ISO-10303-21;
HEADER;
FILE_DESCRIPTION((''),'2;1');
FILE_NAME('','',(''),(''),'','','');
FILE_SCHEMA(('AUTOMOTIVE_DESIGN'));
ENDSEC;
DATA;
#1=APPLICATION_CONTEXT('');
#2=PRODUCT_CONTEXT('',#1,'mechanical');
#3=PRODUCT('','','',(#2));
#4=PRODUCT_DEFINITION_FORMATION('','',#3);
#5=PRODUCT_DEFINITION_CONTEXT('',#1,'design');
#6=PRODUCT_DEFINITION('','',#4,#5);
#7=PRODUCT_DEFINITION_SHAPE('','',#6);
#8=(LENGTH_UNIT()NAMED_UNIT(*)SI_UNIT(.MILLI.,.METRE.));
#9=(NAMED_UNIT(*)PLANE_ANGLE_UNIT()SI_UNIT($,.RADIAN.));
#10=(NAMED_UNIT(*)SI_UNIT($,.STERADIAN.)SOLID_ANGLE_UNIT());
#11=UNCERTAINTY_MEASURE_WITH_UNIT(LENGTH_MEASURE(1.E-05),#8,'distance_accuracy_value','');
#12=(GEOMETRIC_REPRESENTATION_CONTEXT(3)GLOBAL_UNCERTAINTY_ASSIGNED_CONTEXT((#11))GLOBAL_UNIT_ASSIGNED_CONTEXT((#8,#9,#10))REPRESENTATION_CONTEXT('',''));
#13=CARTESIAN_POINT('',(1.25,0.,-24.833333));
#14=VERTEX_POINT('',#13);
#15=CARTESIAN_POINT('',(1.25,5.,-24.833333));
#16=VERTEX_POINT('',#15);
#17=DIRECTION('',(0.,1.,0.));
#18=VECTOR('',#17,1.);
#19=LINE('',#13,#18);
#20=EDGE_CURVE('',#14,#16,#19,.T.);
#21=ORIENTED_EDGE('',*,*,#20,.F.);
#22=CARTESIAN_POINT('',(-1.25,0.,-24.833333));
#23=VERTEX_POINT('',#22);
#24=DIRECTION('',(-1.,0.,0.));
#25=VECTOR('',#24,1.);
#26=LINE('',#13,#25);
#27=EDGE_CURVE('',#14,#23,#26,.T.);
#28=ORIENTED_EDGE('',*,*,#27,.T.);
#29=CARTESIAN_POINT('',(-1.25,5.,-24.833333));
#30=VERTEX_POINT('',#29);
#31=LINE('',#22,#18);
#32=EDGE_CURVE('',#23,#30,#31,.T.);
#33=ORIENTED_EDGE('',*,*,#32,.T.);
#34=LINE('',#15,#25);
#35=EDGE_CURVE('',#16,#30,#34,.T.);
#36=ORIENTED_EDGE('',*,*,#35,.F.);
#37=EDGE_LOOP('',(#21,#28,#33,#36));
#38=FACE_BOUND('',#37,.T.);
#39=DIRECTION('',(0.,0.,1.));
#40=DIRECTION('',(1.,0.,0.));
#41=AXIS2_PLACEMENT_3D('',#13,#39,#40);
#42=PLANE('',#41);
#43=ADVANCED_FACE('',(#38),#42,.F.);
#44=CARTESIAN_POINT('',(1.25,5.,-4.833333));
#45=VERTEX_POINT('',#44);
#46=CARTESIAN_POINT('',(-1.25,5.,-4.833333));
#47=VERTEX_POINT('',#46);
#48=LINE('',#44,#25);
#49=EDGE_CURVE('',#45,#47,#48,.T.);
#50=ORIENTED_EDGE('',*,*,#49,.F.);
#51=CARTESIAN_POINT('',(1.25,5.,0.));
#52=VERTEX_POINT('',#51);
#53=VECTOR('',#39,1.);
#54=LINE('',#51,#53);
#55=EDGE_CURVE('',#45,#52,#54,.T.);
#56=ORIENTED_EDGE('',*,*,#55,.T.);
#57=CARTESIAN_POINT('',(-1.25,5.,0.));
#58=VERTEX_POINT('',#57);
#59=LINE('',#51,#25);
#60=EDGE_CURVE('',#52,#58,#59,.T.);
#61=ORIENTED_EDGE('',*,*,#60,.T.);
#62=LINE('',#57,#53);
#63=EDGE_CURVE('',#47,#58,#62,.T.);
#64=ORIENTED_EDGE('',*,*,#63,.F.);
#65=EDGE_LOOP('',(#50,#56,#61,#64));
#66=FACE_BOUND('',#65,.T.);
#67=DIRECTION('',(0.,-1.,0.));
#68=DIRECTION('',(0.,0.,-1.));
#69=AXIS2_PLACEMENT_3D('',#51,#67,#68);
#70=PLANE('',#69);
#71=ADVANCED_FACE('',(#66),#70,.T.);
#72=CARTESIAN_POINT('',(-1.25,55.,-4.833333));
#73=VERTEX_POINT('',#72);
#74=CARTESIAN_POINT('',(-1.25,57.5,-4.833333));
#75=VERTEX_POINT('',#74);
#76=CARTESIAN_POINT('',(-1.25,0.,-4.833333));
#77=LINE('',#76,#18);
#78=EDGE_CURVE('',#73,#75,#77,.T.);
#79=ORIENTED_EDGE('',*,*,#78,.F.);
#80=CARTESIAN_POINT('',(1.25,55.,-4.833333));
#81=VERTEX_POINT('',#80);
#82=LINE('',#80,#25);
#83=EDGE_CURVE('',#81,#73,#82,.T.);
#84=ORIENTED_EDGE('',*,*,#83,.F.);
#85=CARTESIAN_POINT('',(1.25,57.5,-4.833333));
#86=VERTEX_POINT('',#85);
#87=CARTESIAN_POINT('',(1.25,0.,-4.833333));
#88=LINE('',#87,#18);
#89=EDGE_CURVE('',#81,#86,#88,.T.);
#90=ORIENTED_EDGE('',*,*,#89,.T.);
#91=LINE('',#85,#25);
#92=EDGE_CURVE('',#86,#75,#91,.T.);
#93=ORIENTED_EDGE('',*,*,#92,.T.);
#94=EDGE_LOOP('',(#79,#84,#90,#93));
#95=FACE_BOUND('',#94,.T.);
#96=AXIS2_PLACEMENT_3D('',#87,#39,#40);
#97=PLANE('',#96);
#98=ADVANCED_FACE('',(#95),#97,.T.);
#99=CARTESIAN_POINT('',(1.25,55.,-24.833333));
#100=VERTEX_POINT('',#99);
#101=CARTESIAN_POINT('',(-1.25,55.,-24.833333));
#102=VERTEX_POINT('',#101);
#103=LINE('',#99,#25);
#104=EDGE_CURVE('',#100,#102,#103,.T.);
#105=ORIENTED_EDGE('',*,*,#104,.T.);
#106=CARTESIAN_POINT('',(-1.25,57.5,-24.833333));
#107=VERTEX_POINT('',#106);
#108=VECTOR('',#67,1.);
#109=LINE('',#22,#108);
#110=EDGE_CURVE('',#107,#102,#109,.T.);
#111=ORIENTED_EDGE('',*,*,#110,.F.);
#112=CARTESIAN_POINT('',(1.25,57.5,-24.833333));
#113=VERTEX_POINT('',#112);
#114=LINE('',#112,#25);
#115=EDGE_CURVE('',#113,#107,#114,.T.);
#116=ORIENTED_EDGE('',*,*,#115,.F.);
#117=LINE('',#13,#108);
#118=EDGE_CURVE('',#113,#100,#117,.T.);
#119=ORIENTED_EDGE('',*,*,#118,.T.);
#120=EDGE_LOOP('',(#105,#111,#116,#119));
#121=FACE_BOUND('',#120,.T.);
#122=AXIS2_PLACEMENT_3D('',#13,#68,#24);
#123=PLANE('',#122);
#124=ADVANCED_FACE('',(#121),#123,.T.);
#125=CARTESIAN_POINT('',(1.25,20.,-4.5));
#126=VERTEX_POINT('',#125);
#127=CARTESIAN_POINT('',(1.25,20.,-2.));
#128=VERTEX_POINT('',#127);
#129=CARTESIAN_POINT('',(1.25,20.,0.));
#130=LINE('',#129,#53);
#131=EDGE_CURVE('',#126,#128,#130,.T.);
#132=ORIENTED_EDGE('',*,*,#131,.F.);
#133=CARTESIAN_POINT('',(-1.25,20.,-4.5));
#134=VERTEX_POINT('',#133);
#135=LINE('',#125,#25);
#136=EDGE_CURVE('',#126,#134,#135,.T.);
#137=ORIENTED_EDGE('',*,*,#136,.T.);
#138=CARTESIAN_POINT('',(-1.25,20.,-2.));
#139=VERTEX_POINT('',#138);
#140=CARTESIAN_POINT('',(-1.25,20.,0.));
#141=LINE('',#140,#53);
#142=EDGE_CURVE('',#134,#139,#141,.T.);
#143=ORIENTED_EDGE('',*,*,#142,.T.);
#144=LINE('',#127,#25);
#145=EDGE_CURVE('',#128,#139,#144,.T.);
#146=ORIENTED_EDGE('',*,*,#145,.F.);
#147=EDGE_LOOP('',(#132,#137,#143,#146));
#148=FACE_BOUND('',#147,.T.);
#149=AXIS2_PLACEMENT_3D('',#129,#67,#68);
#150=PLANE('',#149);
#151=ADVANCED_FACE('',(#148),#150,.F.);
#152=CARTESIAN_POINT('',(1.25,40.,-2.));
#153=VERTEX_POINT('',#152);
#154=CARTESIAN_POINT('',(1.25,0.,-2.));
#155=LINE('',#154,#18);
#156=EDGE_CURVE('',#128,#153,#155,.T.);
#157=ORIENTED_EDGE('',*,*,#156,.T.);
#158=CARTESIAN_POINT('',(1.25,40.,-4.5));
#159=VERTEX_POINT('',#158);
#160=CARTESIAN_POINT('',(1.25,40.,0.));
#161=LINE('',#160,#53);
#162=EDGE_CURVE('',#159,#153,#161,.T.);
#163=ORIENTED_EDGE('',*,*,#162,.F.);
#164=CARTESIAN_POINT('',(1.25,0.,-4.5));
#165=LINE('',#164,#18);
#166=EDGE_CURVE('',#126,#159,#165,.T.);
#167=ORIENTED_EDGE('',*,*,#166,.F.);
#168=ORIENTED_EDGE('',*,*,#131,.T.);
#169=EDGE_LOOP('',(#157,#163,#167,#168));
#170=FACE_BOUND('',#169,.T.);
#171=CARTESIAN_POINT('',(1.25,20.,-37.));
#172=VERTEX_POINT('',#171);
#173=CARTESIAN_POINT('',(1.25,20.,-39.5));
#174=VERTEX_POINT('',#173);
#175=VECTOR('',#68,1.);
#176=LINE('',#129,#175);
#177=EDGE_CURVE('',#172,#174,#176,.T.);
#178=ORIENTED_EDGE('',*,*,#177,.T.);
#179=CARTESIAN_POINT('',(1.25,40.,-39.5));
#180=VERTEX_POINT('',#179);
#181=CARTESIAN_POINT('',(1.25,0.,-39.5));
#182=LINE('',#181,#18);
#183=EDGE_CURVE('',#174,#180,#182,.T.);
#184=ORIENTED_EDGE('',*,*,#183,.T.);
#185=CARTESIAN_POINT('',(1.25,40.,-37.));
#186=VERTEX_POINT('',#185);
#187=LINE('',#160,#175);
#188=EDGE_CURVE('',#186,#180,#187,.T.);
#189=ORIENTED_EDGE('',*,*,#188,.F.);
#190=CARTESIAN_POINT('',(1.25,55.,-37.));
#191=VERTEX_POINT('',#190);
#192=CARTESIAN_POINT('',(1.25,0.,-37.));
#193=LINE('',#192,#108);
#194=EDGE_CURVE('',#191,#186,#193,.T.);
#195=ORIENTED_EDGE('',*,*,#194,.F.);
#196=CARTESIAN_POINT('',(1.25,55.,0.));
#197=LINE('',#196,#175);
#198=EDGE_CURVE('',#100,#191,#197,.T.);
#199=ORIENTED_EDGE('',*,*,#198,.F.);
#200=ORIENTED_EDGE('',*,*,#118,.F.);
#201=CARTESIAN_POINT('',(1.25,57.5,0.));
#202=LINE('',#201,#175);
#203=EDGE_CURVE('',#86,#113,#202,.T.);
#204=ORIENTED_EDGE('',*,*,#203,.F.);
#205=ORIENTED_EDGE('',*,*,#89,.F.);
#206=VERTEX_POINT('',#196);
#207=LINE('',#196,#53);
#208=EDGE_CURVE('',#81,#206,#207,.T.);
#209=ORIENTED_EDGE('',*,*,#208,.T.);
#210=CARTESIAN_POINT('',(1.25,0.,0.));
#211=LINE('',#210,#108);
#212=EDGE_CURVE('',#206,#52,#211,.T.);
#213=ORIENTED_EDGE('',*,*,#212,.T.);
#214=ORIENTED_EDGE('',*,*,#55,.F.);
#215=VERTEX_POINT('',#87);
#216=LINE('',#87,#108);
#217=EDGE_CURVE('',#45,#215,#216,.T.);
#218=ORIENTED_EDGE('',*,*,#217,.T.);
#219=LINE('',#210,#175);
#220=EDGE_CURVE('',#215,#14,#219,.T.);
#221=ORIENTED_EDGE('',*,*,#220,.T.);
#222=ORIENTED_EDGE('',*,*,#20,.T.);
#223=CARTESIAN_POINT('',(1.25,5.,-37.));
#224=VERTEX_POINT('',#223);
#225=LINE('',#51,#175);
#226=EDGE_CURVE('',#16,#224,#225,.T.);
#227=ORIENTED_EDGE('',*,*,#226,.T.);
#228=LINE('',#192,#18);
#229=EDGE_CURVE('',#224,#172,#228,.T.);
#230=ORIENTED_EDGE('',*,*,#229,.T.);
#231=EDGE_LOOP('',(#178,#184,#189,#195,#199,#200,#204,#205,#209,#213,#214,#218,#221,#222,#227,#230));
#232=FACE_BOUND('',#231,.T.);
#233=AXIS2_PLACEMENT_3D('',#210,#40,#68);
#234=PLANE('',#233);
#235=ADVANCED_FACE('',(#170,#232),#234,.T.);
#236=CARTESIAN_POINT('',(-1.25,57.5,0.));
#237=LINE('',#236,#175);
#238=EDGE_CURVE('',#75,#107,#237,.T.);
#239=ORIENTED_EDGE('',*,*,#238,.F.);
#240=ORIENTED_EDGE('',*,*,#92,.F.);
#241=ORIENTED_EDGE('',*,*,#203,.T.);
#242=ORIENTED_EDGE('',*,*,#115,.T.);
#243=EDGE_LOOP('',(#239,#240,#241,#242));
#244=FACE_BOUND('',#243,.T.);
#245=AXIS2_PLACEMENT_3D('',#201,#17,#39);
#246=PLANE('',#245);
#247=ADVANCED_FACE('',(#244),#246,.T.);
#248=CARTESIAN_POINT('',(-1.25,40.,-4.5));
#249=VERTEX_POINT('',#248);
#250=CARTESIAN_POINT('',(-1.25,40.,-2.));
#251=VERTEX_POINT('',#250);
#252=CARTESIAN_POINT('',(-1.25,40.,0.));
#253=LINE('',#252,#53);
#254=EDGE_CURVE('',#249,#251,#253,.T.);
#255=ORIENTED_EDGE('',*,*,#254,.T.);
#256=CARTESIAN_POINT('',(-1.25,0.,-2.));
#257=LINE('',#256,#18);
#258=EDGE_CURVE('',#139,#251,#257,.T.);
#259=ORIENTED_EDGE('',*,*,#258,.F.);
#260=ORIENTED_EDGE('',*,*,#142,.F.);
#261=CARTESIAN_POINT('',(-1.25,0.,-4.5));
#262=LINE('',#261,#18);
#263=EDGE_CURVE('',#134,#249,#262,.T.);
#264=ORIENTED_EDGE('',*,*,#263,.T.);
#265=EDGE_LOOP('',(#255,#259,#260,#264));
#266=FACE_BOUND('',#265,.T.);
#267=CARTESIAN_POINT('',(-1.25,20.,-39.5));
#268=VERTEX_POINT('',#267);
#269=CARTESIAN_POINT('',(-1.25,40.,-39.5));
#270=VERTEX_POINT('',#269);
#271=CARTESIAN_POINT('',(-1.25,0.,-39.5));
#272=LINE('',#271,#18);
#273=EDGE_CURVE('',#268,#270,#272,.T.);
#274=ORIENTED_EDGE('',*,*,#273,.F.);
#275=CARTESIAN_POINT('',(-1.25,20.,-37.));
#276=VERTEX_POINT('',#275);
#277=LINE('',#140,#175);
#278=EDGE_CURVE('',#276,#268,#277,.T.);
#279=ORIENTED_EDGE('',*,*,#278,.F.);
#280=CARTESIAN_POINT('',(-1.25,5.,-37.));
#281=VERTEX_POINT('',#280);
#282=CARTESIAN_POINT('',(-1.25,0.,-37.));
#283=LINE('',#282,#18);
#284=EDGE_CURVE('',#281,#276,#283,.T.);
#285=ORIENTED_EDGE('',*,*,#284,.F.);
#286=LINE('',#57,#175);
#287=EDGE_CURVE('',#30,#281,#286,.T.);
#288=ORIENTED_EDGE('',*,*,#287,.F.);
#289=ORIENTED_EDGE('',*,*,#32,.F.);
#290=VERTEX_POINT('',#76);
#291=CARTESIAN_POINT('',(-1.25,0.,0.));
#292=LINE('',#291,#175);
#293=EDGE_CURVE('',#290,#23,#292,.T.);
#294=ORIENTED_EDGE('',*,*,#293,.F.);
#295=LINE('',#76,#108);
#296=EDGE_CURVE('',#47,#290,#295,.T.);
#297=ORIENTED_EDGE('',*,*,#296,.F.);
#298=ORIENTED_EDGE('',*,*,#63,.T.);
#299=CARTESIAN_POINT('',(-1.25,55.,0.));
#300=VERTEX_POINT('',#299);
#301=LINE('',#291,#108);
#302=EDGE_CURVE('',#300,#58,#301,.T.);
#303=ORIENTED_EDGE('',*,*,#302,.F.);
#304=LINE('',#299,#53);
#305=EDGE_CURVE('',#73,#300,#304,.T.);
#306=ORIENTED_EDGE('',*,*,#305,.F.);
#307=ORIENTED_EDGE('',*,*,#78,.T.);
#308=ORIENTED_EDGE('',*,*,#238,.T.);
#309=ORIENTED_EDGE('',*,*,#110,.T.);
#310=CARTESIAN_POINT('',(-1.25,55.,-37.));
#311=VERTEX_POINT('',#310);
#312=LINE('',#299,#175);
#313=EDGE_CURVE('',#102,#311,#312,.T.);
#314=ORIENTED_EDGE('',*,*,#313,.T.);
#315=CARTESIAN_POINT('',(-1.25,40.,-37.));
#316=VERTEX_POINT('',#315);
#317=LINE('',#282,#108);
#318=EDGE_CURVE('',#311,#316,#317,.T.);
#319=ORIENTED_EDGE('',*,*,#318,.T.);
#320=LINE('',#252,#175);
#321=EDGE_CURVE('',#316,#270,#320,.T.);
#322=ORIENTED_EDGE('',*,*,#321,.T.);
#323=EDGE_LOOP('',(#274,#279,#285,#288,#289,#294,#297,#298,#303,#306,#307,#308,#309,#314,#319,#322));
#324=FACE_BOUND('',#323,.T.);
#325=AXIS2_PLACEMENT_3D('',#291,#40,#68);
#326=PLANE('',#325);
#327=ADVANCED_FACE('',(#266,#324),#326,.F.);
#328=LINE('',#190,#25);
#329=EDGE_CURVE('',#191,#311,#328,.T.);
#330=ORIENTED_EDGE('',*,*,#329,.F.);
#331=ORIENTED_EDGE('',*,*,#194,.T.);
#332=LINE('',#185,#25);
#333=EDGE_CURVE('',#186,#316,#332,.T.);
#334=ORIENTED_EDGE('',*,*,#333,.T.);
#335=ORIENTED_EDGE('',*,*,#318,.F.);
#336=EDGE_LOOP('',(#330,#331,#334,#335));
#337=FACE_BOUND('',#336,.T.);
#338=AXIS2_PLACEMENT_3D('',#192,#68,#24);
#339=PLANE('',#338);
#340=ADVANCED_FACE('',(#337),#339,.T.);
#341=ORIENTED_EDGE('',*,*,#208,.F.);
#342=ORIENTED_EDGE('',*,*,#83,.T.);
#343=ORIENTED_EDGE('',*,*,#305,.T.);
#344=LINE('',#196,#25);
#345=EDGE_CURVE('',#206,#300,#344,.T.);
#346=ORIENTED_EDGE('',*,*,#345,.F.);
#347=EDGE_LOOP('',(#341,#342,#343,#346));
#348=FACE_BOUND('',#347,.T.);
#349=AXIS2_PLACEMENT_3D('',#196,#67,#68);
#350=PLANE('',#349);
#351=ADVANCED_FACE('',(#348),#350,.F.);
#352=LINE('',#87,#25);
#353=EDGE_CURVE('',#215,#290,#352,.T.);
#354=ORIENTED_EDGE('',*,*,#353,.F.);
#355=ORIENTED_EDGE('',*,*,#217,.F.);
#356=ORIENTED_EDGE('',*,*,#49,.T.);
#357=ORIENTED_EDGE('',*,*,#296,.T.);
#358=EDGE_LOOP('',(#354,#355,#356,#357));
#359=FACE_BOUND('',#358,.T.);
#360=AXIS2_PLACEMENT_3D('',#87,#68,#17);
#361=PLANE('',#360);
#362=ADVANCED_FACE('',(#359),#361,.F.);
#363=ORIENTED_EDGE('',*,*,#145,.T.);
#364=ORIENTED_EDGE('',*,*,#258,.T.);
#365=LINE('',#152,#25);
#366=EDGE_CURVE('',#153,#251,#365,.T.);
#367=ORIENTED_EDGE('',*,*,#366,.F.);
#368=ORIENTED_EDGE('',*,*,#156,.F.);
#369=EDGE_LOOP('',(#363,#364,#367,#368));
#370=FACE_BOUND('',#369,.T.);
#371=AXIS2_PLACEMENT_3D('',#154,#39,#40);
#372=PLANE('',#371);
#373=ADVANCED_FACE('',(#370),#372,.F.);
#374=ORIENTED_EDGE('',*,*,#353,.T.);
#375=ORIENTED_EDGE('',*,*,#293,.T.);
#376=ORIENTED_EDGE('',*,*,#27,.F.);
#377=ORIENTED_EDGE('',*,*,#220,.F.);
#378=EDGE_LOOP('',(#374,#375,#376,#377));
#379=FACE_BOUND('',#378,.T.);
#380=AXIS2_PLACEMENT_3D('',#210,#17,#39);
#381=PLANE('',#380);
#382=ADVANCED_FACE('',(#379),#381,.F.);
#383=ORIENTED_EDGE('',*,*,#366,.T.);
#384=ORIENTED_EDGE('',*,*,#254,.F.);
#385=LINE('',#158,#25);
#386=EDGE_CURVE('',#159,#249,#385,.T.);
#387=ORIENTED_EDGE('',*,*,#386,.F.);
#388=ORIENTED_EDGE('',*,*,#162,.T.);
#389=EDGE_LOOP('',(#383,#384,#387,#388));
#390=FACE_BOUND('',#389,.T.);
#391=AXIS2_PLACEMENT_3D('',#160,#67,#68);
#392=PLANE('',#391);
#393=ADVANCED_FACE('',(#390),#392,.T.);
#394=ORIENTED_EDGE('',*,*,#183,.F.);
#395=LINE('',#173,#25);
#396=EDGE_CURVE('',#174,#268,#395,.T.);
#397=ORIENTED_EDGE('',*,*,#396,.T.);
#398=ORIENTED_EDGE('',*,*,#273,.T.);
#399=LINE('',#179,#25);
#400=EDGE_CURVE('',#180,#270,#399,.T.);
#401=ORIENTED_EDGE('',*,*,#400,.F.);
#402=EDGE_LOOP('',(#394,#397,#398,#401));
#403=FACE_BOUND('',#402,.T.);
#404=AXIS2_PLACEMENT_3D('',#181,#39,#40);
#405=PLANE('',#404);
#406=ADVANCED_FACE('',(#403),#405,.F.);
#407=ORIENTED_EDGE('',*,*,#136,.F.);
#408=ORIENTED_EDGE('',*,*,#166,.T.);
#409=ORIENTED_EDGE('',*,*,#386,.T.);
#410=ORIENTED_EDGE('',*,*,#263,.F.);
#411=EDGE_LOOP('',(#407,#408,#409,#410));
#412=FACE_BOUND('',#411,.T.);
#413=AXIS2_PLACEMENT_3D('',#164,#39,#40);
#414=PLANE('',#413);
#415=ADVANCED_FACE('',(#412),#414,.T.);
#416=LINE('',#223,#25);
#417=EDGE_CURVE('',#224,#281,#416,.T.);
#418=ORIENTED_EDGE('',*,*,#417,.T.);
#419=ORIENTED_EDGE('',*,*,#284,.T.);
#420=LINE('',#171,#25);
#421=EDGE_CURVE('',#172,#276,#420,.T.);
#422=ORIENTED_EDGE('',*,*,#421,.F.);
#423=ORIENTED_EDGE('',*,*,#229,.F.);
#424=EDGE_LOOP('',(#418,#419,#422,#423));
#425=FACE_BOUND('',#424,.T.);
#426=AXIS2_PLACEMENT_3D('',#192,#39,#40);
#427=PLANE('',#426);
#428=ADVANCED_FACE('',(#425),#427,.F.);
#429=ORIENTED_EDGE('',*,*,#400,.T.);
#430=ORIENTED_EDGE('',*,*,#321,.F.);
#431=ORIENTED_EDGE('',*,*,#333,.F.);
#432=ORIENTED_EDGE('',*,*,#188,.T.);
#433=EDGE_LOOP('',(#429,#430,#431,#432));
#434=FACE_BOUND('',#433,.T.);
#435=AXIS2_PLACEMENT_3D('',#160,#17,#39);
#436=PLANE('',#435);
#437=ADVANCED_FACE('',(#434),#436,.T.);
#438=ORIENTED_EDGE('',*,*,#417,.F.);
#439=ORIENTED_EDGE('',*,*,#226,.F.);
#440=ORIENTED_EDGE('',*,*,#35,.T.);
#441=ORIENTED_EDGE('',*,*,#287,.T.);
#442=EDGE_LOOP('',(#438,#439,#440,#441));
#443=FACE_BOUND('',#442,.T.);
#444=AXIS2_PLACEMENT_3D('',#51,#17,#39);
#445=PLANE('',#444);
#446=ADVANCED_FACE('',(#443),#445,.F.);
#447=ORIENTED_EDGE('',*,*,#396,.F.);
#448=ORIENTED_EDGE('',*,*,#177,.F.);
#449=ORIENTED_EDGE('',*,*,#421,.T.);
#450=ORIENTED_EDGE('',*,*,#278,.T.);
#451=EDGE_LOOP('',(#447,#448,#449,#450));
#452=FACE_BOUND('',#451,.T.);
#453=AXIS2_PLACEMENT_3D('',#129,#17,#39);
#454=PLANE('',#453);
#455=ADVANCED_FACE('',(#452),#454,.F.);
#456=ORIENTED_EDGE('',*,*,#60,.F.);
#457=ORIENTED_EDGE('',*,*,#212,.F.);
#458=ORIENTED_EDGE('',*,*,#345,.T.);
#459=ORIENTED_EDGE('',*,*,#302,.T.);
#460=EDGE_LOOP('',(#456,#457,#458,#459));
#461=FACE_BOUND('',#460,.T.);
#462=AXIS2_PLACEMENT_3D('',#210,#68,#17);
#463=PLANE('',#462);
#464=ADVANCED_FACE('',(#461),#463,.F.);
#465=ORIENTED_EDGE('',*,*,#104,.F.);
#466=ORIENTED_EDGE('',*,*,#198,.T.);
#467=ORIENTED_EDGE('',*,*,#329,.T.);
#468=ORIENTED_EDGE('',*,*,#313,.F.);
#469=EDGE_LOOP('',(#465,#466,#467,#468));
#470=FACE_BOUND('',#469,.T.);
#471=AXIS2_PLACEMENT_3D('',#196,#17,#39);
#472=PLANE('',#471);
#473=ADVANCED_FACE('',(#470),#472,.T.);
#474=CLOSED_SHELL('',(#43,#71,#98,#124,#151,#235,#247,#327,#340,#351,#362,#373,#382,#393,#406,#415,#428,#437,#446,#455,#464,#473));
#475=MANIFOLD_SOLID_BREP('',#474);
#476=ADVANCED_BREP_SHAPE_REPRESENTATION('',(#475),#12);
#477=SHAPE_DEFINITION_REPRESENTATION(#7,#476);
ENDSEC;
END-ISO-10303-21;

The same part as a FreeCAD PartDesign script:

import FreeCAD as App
import Part
import Sketcher

V = App.Vector

doc = App.newDocument("Part")
body = doc.addObject("PartDesign::Body", "Body")

sketch1 = body.newObject("Sketcher::SketchObject", "Sketch")
sketch1.AttachmentSupport = (doc.getObject("YZ_Plane"), [""])
sketch1.MapMode = "FlatFace"
sketch1.addGeometry([
    Part.LineSegment(V(5, 0, 0), V(5, -4.8, 0)),
    Part.LineSegment(V(5, -4.8, 0), V(0, -4.8, 0)),
    Part.LineSegment(V(0, -4.8, 0), V(0, -24.8, 0)),
    Part.LineSegment(V(0, -24.8, 0), V(5, -24.8, 0)),
    Part.LineSegment(V(5, -24.8, 0), V(5, -37, 0)),
    Part.LineSegment(V(5, -37, 0), V(20, -37, 0)),
    Part.LineSegment(V(20, -37, 0), V(20, -39.5, 0)),
    Part.LineSegment(V(20, -39.5, 0), V(40, -39.5, 0)),
    Part.LineSegment(V(40, -39.5, 0), V(40, -37, 0)),
    Part.LineSegment(V(40, -37, 0), V(55, -37, 0)),
    Part.LineSegment(V(55, -37, 0), V(55, -24.8, 0)),
    Part.LineSegment(V(55, -24.8, 0), V(57.5, -24.8, 0)),
    Part.LineSegment(V(57.5, -24.8, 0), V(57.5, -4.8, 0)),
    Part.LineSegment(V(57.5, -4.8, 0), V(55, -4.8, 0)),
    Part.LineSegment(V(55, -4.8, 0), V(55, 0, 0)),
    Part.LineSegment(V(55, 0, 0), V(5, 0, 0)),
    Part.LineSegment(V(20, -2, 0), V(40, -2, 0)),
    Part.LineSegment(V(40, -2, 0), V(40, -4.5, 0)),
    Part.LineSegment(V(40, -4.5, 0), V(20, -4.5, 0)),
    Part.LineSegment(V(20, -4.5, 0), V(20, -2, 0)),
], False)
sketch1.addConstraint([
    Sketcher.Constraint("Coincident", 0, 2, 1, 1),
    Sketcher.Constraint("Coincident", 1, 2, 2, 1),
    Sketcher.Constraint("Coincident", 2, 2, 3, 1),
    Sketcher.Constraint("Coincident", 3, 2, 4, 1),
    Sketcher.Constraint("Coincident", 4, 2, 5, 1),
    Sketcher.Constraint("Coincident", 5, 2, 6, 1),
    Sketcher.Constraint("Coincident", 6, 2, 7, 1),
    Sketcher.Constraint("Coincident", 7, 2, 8, 1),
    Sketcher.Constraint("Coincident", 8, 2, 9, 1),
    Sketcher.Constraint("Coincident", 9, 2, 10, 1),
    Sketcher.Constraint("Coincident", 10, 2, 11, 1),
    Sketcher.Constraint("Coincident", 11, 2, 12, 1),
    Sketcher.Constraint("Coincident", 12, 2, 13, 1),
    Sketcher.Constraint("Coincident", 13, 2, 14, 1),
    Sketcher.Constraint("Coincident", 14, 2, 15, 1),
    Sketcher.Constraint("Coincident", 15, 2, 0, 1),
    Sketcher.Constraint("Coincident", 16, 2, 17, 1),
    Sketcher.Constraint("Coincident", 17, 2, 18, 1),
    Sketcher.Constraint("Coincident", 18, 2, 19, 1),
    Sketcher.Constraint("Coincident", 19, 2, 16, 1),
    Sketcher.Constraint("Vertical", 0),
    Sketcher.Constraint("Horizontal", 1),
    Sketcher.Constraint("Vertical", 2),
    Sketcher.Constraint("Horizontal", 3),
    Sketcher.Constraint("Vertical", 4),
    Sketcher.Constraint("Horizontal", 5),
    Sketcher.Constraint("Vertical", 6),
    Sketcher.Constraint("Horizontal", 7),
    Sketcher.Constraint("Vertical", 8),
    Sketcher.Constraint("Horizontal", 9),
    Sketcher.Constraint("Vertical", 10),
    Sketcher.Constraint("Horizontal", 11),
    Sketcher.Constraint("Vertical", 12),
    Sketcher.Constraint("Horizontal", 13),
    Sketcher.Constraint("Vertical", 14),
    Sketcher.Constraint("Horizontal", 15),
    Sketcher.Constraint("Horizontal", 16),
    Sketcher.Constraint("Vertical", 17),
    Sketcher.Constraint("Horizontal", 18),
    Sketcher.Constraint("Vertical", 19),
    Sketcher.Constraint("PointOnObject", 1, 2, -2),
    Sketcher.Constraint("PointOnObject", 14, 2, -1),
    Sketcher.Constraint("Horizontal", 5, 2, 8, 2),
    Sketcher.Constraint("Horizontal", 3, 2, 10, 2),
    Sketcher.Constraint("Horizontal", 1, 2, 12, 2),
    Sketcher.Constraint("Vertical", 0, 2, 3, 2),
    Sketcher.Constraint("Vertical", 10, 2, 13, 2),
    Sketcher.Constraint("Vertical", 8, 2, 16, 2),
    Sketcher.Constraint("Vertical", 6, 2, 18, 2),
    Sketcher.Constraint("Equal", 5, 9),
    Sketcher.Constraint("Equal", 18, 2),
    Sketcher.Constraint("Equal", 13, 6),
    Sketcher.Constraint("Equal", 8, 17),
    Sketcher.Constraint("DistanceX", 1, 2, 1, 1, 5.0),
    Sketcher.Constraint("DistanceX", 5, 1, 5, 2, 15.0),
    Sketcher.Constraint("DistanceX", 7, 1, 7, 2, 20.0),
    Sketcher.Constraint("DistanceX", 11, 1, 11, 2, 2.5),
    Sketcher.Constraint("DistanceY", 4, 2, -1, 1, 37.0),
    Sketcher.Constraint("DistanceY", 16, 2, -1, 1, 2.0),
    Sketcher.Constraint("DistanceY", 0, 2, 0, 1, 4.833333),
])
pad1 = body.newObject("PartDesign::Pad", "Pad")
pad1.Profile = sketch1
pad1.Length = 2.5
pad1.Midplane = True

doc.recompute()
